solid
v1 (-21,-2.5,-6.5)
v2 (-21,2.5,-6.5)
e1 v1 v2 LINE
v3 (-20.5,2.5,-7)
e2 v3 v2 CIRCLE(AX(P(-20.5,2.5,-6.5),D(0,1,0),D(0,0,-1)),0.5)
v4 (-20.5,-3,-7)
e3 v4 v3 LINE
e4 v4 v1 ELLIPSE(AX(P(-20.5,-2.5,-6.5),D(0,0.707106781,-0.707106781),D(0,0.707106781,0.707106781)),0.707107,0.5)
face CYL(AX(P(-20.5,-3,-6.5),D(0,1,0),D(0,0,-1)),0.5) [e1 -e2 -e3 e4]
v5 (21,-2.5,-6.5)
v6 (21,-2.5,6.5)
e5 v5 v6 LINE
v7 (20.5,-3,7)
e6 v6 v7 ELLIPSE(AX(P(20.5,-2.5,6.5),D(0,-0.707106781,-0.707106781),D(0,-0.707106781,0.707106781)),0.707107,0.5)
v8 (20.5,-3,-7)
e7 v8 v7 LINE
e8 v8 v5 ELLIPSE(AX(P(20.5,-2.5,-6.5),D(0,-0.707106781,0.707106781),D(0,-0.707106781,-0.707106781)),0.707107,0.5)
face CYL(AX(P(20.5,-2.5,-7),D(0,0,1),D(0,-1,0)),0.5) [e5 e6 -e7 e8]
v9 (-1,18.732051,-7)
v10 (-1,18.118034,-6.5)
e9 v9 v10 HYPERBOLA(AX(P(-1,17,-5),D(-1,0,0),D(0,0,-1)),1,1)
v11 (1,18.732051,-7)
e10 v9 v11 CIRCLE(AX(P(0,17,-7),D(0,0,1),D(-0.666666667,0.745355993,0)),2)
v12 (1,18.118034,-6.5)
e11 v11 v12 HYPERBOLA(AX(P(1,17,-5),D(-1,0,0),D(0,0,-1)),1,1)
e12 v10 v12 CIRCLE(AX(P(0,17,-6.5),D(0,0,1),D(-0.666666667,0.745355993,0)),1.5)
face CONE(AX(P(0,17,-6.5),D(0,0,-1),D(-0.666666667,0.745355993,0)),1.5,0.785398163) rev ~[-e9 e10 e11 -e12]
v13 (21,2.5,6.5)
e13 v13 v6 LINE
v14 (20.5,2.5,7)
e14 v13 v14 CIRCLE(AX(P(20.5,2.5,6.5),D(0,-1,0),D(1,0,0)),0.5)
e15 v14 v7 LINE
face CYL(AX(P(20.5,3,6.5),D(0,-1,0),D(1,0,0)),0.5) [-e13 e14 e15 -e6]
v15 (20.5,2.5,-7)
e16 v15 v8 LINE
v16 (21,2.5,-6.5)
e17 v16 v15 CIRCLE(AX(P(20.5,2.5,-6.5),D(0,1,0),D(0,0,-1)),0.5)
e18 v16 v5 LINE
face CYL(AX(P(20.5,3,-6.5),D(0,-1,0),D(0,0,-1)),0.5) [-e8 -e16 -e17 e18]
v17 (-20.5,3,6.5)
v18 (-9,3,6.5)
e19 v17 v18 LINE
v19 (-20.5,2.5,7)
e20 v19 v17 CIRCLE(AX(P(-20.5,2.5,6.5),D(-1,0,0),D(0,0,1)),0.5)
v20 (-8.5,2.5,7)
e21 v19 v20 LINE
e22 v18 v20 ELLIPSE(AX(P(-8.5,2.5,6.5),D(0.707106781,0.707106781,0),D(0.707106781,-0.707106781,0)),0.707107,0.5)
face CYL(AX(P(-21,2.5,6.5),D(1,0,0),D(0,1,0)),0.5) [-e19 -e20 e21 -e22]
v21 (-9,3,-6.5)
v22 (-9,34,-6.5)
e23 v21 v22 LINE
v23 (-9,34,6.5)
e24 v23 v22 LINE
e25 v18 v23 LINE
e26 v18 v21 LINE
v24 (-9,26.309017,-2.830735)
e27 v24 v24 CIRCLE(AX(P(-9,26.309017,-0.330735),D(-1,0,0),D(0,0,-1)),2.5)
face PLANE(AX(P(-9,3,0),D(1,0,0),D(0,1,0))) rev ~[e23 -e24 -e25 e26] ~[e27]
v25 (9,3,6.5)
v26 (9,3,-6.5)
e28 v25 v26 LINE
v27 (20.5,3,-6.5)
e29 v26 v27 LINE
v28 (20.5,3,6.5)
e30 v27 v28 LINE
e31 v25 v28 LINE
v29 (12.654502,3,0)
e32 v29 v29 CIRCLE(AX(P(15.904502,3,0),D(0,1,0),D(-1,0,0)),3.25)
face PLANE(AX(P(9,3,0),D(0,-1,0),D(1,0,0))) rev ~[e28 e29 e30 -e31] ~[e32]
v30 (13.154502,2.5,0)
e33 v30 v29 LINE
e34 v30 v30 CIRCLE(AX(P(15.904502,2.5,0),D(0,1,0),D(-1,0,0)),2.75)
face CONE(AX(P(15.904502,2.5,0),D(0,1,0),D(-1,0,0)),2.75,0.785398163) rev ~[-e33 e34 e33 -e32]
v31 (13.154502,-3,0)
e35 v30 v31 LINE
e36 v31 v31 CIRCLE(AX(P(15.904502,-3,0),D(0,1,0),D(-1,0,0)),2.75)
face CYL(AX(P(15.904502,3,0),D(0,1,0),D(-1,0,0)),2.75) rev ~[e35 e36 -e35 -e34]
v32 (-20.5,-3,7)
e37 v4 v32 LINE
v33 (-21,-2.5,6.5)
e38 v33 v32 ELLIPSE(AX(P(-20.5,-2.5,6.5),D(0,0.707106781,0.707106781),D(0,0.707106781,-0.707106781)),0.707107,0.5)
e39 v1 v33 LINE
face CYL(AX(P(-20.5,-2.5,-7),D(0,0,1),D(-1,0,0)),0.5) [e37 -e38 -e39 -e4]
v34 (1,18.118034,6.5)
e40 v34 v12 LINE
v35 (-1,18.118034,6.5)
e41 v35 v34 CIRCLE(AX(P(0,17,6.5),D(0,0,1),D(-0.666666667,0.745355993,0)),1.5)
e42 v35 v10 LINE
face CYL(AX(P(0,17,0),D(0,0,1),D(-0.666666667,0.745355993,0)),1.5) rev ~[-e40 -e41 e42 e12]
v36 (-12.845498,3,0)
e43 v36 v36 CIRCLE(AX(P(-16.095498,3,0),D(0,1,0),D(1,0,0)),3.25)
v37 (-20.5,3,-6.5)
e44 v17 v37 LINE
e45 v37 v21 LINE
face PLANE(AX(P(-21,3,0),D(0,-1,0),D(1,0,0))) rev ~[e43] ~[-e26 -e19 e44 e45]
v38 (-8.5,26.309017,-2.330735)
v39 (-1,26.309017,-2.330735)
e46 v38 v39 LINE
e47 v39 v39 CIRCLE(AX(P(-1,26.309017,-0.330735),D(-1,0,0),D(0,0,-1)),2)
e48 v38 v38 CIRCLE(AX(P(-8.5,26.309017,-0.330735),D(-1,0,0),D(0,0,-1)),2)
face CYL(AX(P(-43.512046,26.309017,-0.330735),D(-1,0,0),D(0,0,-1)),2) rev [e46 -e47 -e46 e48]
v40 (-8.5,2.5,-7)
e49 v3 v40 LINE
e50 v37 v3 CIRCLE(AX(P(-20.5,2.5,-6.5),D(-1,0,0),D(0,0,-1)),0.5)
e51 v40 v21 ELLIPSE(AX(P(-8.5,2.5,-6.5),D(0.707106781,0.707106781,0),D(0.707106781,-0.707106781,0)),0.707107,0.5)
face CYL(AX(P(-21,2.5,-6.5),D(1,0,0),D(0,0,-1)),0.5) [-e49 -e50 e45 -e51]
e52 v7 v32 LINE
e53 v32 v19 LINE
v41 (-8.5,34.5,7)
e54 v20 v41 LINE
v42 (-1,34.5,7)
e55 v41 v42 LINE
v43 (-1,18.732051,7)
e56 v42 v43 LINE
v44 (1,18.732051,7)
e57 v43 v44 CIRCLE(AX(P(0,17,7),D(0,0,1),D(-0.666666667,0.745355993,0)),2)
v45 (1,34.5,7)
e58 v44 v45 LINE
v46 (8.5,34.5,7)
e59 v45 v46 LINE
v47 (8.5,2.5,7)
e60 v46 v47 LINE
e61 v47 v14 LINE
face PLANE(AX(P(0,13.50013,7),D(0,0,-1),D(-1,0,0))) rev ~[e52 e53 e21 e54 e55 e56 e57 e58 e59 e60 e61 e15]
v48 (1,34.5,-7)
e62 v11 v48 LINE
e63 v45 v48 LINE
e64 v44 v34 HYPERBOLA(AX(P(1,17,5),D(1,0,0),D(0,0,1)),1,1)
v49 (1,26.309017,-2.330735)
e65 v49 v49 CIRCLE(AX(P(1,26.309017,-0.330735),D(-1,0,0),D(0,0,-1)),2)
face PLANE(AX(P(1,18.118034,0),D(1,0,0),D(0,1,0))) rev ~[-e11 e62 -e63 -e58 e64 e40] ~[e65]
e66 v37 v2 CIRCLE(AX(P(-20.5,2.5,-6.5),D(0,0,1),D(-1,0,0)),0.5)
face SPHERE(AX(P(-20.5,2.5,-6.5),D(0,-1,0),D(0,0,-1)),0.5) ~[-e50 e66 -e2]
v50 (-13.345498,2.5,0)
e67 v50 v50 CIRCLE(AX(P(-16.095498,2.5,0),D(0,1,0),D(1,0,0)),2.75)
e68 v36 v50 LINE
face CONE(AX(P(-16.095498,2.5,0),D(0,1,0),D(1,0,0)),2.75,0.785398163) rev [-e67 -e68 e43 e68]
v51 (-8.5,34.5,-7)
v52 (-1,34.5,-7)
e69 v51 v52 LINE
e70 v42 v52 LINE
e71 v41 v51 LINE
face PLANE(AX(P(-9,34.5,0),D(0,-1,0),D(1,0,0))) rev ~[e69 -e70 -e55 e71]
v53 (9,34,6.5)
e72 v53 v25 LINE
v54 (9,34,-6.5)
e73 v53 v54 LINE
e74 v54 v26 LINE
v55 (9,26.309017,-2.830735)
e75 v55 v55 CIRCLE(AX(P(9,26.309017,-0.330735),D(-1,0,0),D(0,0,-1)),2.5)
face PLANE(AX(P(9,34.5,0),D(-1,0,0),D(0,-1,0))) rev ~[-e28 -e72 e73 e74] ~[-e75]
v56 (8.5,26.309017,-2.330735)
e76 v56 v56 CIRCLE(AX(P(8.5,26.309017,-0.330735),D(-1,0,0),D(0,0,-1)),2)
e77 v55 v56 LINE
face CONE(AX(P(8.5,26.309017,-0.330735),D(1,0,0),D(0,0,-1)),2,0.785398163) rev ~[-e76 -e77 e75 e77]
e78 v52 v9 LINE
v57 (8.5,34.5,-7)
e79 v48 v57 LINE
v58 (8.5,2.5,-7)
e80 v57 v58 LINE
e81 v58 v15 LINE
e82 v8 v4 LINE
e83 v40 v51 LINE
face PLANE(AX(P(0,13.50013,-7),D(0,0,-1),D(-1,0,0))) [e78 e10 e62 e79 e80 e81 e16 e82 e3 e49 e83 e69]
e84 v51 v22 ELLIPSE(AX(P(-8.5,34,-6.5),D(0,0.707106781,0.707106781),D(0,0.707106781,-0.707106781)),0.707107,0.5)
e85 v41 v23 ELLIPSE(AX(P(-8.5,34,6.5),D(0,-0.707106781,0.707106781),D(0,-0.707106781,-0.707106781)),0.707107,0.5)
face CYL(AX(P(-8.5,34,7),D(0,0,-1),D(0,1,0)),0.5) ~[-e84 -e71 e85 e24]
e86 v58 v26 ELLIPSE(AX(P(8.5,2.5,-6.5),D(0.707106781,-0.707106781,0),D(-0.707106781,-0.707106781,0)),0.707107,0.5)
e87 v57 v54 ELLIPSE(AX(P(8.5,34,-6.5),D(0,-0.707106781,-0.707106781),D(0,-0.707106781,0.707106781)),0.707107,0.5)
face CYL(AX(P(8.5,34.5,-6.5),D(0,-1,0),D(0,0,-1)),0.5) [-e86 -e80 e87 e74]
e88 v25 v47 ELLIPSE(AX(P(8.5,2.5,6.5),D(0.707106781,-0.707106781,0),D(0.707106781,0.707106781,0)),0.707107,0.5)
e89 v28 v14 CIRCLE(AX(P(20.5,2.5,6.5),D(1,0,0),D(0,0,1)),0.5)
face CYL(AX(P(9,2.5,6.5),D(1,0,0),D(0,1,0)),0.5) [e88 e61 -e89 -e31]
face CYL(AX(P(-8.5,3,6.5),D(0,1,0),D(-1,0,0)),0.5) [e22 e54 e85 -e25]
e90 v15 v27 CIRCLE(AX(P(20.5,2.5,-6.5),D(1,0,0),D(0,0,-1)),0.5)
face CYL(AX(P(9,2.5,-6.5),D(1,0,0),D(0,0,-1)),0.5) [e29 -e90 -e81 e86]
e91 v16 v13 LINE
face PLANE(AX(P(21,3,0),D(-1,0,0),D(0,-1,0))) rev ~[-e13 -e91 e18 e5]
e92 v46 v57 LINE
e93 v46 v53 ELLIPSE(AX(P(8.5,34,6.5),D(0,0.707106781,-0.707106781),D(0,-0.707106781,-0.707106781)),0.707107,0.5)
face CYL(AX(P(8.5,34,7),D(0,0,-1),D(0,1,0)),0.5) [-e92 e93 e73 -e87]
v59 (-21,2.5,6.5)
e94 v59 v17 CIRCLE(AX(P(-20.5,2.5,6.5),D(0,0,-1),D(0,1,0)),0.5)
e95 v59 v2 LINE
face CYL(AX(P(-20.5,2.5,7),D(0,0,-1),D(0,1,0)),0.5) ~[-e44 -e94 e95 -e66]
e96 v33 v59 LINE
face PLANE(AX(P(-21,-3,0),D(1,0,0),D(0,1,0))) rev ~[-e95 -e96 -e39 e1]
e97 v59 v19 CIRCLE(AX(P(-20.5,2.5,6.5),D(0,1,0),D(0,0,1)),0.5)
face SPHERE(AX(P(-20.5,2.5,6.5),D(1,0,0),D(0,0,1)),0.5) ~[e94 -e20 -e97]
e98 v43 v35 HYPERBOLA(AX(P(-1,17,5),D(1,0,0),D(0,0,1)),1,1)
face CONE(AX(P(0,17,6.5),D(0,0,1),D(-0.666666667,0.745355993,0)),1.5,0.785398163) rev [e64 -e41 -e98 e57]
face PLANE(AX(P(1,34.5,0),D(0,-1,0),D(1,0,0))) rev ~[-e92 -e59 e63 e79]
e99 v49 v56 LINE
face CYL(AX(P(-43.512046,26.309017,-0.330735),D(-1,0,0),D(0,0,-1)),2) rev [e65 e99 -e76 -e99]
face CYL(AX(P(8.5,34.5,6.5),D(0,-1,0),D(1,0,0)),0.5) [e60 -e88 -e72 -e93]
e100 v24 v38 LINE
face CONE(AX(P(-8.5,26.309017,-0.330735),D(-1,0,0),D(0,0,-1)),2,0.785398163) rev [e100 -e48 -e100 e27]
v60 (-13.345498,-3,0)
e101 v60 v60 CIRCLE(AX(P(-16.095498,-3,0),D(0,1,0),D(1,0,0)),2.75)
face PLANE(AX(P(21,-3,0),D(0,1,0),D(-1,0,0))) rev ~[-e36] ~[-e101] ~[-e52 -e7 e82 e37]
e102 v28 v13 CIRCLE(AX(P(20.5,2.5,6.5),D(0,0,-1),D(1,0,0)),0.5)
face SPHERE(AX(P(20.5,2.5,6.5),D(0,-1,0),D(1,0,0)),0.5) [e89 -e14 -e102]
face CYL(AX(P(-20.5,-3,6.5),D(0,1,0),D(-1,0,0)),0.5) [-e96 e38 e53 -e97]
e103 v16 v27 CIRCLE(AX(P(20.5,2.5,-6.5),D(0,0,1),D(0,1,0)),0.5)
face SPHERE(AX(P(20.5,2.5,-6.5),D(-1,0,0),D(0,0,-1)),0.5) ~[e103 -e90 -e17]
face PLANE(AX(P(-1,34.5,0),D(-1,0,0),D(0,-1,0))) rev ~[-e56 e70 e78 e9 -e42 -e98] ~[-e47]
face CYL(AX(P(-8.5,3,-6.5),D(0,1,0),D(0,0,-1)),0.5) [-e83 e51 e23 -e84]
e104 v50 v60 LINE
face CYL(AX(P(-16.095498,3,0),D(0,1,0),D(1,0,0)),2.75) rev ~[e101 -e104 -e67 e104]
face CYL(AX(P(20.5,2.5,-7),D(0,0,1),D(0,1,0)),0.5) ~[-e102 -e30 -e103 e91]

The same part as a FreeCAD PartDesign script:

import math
import FreeCAD as App
import Part
import Sketcher
from FreeCAD import Vector


def edges_at(feature, points):
    """Names of the edges that pass closest to the given points."""
    edges = feature.Shape.Edges
    near = lambda p: min(range(len(edges)), key=lambda i: edges[i].distToShape(Part.Vertex(*p))[0])
    return sorted({f"Edge{near(p) + 1}" for p in points})

doc = App.newDocument("Part")
body = doc.addObject("PartDesign::Body", "Body")

sketch1 = body.newObject("Sketcher::SketchObject", "Sketch")
sketch1.AttachmentSupport = (doc.getObject("XY_Plane"), [""])
sketch1.MapMode = "FlatFace"
sketch1.addGeometry([
    Part.LineSegment(Vector(-21, 3, 0), Vector(-21, -3, 0)),
    Part.LineSegment(Vector(-21, -3, 0), Vector(21, -3, 0)),
    Part.LineSegment(Vector(21, -3, 0), Vector(21, 3, 0)),
    Part.LineSegment(Vector(21, 3, 0), Vector(9, 3, 0)),
    Part.LineSegment(Vector(9, 3, 0), Vector(9, 34.5, 0)),
    Part.LineSegment(Vector(9, 34.5, 0), Vector(1, 34.5, 0)),
    Part.LineSegment(Vector(1, 34.5, 0), Vector(1, 18.118034, 0)),
    Part.ArcOfCircle(Part.Circle(Vector(0, 17, 0), Vector(0, 0, 1), 1.5), math.radians(131.810315), math.radians(408.189685)),
    Part.LineSegment(Vector(-1, 18.118034, 0), Vector(-1, 34.5, 0)),
    Part.LineSegment(Vector(-1, 34.5, 0), Vector(-9, 34.5, 0)),
    Part.LineSegment(Vector(-9, 34.5, 0), Vector(-9, 3, 0)),
    Part.LineSegment(Vector(-9, 3, 0), Vector(-21, 3, 0)),
], False)
sketch1.addConstraint([
    Sketcher.Constraint("Coincident", 0, 2, 1, 1),
    Sketcher.Constraint("Coincident", 1, 2, 2, 1),
    Sketcher.Constraint("Coincident", 2, 2, 3, 1),
    Sketcher.Constraint("Coincident", 3, 2, 4, 1),
    Sketcher.Constraint("Coincident", 4, 2, 5, 1),
    Sketcher.Constraint("Coincident", 5, 2, 6, 1),
    Sketcher.Constraint("Coincident", 6, 2, 7, 2),
    Sketcher.Constraint("Coincident", 7, 1, 8, 1),
    Sketcher.Constraint("Coincident", 8, 2, 9, 1),
    Sketcher.Constraint("Coincident", 9, 2, 10, 1),
    Sketcher.Constraint("Coincident", 10, 2, 11, 1),
    Sketcher.Constraint("Coincident", 11, 2, 0, 1),
    Sketcher.Constraint("Vertical", 0),
    Sketcher.Constraint("Horizontal", 1),
    Sketcher.Constraint("Vertical", 2),
    Sketcher.Constraint("Horizontal", 3),
    Sketcher.Constraint("Vertical", 4),
    Sketcher.Constraint("Horizontal", 5),
    Sketcher.Constraint("Vertical", 6),
    Sketcher.Constraint("Vertical", 8),
    Sketcher.Constraint("Horizontal", 9),
    Sketcher.Constraint("Vertical", 10),
    Sketcher.Constraint("Horizontal", 11),
    Sketcher.Constraint("Symmetric", 0, 2, 2, 2, -1, 1),
    Sketcher.Constraint("Symmetric", 6, 2, 7, 1, -2),
    Sketcher.Constraint("Symmetric", 4, 2, 9, 2, -2),
    Sketcher.Constraint("Horizontal", 3, 2, 10, 2),
    Sketcher.Constraint("Radius", 7, 1.5),
    Sketcher.Constraint("DistanceX", 1, 1, 1, 2, 42.0),
    Sketcher.Constraint("DistanceX", 3, 2, 3, 1, 12.0),
    Sketcher.Constraint("DistanceX", 5, 2, 5, 1, 8.0),
    Sketcher.Constraint("DistanceY", 0, 2, 0, 1, 6.0),
    Sketcher.Constraint("DistanceY", 4, 1, 4, 2, 31.5),
    Sketcher.Constraint("DistanceY", -1, 1, 7, 3, 17.0),
])
pad1 = body.newObject("PartDesign::Pad", "Pad")
pad1.Profile = sketch1
pad1.Length = 14
pad1.Midplane = True

sketch2 = body.newObject("Sketcher::SketchObject", "Sketch001")
sketch2.AttachmentSupport = (doc.getObject("XZ_Plane"), [""])
sketch2.MapMode = "FlatFace"
sketch2.AttachmentOffset = App.Placement(Vector(0, 0, -3), App.Rotation())
sketch2.addGeometry([
    Part.Circle(Vector(15.904502, 0, 0), Vector(0, 0, 1), 2.75),
    Part.Circle(Vector(-16.095498, 0, 0), Vector(0, 0, 1), 2.75),
], False)
sketch2.addConstraint([
    Sketcher.Constraint("Equal", 0, 1),
    Sketcher.Constraint("PointOnObject", 0, 3, -1),
    Sketcher.Constraint("PointOnObject", 1, 3, -1),
    Sketcher.Constraint("Diameter", 0, 5.5),
    Sketcher.Constraint("DistanceX", 1, 3, 0, 3, 32.0),
    Sketcher.Constraint("DistanceX", -1, 1, 0, 3, 15.904502),
])
pocket1 = body.newObject("PartDesign::Pocket", "Pocket")
pocket1.Profile = sketch2
pocket1.Type = "ThroughAll"
pocket1.Reversed = True

sketch3 = body.newObject("Sketcher::SketchObject", "Sketch002")
sketch3.AttachmentSupport = (doc.getObject("YZ_Plane"), [""])
sketch3.MapMode = "FlatFace"
sketch3.AttachmentOffset = App.Placement(Vector(0, 0, -1), App.Rotation())
sketch3.addGeometry(Part.Circle(Vector(26.309017, -0.330735, 0), Vector(0, 0, 1), 2), False)
sketch3.addConstraint([
    Sketcher.Constraint("Diameter", 0, 4.0),
    Sketcher.Constraint("DistanceX", -1, 1, 0, 3, 26.309017),
    Sketcher.Constraint("DistanceY", 0, 3, -1, 1, 0.330735),
])
pocket2 = body.newObject("PartDesign::Pocket", "Pocket001")
pocket2.Profile = sketch3
pocket2.Type = "ThroughAll"
pocket2.Midplane = True
doc.recompute()

chamfer = body.newObject("PartDesign::Chamfer", "Chamfer")
chamfer.Base = (pocket2, edges_at(pocket2, [
    (0, 15.5, -7),
    (0, 15.5, 7),
    (18.655, 3, 0),
    (-18.845, 3, 0),
    (-9, 26.309, 1.669),
    (9, 26.309, 1.669),
]))
chamfer.Size = 0.5
doc.recompute()

fillet = body.newObject("PartDesign::Fillet", "Fillet")
fillet.Base = (chamfer, edges_at(chamfer, [
    (-15, 3, 7),
    (9, 18.75, -7),
    (15, 3, -7),
    (-21, 0, 7),
    (21, 0, -7),
    (-21, 0, -7),
    (-15, 3, -7),
    (-9, 18.75, -7),
    (21, 0, 7),
    (9, 34.5, 0),
    (21, 3, 0),
    (21, -3, 0),
    (-21, -3, 0),
    (-21, 3, 0),
    (-9, 34.5, 0),
    (15, 3, 7),
    (9, 18.75, 7),
    (-9, 18.75, 7),
]))
fillet.Radius = 0.5

doc.recompute()
